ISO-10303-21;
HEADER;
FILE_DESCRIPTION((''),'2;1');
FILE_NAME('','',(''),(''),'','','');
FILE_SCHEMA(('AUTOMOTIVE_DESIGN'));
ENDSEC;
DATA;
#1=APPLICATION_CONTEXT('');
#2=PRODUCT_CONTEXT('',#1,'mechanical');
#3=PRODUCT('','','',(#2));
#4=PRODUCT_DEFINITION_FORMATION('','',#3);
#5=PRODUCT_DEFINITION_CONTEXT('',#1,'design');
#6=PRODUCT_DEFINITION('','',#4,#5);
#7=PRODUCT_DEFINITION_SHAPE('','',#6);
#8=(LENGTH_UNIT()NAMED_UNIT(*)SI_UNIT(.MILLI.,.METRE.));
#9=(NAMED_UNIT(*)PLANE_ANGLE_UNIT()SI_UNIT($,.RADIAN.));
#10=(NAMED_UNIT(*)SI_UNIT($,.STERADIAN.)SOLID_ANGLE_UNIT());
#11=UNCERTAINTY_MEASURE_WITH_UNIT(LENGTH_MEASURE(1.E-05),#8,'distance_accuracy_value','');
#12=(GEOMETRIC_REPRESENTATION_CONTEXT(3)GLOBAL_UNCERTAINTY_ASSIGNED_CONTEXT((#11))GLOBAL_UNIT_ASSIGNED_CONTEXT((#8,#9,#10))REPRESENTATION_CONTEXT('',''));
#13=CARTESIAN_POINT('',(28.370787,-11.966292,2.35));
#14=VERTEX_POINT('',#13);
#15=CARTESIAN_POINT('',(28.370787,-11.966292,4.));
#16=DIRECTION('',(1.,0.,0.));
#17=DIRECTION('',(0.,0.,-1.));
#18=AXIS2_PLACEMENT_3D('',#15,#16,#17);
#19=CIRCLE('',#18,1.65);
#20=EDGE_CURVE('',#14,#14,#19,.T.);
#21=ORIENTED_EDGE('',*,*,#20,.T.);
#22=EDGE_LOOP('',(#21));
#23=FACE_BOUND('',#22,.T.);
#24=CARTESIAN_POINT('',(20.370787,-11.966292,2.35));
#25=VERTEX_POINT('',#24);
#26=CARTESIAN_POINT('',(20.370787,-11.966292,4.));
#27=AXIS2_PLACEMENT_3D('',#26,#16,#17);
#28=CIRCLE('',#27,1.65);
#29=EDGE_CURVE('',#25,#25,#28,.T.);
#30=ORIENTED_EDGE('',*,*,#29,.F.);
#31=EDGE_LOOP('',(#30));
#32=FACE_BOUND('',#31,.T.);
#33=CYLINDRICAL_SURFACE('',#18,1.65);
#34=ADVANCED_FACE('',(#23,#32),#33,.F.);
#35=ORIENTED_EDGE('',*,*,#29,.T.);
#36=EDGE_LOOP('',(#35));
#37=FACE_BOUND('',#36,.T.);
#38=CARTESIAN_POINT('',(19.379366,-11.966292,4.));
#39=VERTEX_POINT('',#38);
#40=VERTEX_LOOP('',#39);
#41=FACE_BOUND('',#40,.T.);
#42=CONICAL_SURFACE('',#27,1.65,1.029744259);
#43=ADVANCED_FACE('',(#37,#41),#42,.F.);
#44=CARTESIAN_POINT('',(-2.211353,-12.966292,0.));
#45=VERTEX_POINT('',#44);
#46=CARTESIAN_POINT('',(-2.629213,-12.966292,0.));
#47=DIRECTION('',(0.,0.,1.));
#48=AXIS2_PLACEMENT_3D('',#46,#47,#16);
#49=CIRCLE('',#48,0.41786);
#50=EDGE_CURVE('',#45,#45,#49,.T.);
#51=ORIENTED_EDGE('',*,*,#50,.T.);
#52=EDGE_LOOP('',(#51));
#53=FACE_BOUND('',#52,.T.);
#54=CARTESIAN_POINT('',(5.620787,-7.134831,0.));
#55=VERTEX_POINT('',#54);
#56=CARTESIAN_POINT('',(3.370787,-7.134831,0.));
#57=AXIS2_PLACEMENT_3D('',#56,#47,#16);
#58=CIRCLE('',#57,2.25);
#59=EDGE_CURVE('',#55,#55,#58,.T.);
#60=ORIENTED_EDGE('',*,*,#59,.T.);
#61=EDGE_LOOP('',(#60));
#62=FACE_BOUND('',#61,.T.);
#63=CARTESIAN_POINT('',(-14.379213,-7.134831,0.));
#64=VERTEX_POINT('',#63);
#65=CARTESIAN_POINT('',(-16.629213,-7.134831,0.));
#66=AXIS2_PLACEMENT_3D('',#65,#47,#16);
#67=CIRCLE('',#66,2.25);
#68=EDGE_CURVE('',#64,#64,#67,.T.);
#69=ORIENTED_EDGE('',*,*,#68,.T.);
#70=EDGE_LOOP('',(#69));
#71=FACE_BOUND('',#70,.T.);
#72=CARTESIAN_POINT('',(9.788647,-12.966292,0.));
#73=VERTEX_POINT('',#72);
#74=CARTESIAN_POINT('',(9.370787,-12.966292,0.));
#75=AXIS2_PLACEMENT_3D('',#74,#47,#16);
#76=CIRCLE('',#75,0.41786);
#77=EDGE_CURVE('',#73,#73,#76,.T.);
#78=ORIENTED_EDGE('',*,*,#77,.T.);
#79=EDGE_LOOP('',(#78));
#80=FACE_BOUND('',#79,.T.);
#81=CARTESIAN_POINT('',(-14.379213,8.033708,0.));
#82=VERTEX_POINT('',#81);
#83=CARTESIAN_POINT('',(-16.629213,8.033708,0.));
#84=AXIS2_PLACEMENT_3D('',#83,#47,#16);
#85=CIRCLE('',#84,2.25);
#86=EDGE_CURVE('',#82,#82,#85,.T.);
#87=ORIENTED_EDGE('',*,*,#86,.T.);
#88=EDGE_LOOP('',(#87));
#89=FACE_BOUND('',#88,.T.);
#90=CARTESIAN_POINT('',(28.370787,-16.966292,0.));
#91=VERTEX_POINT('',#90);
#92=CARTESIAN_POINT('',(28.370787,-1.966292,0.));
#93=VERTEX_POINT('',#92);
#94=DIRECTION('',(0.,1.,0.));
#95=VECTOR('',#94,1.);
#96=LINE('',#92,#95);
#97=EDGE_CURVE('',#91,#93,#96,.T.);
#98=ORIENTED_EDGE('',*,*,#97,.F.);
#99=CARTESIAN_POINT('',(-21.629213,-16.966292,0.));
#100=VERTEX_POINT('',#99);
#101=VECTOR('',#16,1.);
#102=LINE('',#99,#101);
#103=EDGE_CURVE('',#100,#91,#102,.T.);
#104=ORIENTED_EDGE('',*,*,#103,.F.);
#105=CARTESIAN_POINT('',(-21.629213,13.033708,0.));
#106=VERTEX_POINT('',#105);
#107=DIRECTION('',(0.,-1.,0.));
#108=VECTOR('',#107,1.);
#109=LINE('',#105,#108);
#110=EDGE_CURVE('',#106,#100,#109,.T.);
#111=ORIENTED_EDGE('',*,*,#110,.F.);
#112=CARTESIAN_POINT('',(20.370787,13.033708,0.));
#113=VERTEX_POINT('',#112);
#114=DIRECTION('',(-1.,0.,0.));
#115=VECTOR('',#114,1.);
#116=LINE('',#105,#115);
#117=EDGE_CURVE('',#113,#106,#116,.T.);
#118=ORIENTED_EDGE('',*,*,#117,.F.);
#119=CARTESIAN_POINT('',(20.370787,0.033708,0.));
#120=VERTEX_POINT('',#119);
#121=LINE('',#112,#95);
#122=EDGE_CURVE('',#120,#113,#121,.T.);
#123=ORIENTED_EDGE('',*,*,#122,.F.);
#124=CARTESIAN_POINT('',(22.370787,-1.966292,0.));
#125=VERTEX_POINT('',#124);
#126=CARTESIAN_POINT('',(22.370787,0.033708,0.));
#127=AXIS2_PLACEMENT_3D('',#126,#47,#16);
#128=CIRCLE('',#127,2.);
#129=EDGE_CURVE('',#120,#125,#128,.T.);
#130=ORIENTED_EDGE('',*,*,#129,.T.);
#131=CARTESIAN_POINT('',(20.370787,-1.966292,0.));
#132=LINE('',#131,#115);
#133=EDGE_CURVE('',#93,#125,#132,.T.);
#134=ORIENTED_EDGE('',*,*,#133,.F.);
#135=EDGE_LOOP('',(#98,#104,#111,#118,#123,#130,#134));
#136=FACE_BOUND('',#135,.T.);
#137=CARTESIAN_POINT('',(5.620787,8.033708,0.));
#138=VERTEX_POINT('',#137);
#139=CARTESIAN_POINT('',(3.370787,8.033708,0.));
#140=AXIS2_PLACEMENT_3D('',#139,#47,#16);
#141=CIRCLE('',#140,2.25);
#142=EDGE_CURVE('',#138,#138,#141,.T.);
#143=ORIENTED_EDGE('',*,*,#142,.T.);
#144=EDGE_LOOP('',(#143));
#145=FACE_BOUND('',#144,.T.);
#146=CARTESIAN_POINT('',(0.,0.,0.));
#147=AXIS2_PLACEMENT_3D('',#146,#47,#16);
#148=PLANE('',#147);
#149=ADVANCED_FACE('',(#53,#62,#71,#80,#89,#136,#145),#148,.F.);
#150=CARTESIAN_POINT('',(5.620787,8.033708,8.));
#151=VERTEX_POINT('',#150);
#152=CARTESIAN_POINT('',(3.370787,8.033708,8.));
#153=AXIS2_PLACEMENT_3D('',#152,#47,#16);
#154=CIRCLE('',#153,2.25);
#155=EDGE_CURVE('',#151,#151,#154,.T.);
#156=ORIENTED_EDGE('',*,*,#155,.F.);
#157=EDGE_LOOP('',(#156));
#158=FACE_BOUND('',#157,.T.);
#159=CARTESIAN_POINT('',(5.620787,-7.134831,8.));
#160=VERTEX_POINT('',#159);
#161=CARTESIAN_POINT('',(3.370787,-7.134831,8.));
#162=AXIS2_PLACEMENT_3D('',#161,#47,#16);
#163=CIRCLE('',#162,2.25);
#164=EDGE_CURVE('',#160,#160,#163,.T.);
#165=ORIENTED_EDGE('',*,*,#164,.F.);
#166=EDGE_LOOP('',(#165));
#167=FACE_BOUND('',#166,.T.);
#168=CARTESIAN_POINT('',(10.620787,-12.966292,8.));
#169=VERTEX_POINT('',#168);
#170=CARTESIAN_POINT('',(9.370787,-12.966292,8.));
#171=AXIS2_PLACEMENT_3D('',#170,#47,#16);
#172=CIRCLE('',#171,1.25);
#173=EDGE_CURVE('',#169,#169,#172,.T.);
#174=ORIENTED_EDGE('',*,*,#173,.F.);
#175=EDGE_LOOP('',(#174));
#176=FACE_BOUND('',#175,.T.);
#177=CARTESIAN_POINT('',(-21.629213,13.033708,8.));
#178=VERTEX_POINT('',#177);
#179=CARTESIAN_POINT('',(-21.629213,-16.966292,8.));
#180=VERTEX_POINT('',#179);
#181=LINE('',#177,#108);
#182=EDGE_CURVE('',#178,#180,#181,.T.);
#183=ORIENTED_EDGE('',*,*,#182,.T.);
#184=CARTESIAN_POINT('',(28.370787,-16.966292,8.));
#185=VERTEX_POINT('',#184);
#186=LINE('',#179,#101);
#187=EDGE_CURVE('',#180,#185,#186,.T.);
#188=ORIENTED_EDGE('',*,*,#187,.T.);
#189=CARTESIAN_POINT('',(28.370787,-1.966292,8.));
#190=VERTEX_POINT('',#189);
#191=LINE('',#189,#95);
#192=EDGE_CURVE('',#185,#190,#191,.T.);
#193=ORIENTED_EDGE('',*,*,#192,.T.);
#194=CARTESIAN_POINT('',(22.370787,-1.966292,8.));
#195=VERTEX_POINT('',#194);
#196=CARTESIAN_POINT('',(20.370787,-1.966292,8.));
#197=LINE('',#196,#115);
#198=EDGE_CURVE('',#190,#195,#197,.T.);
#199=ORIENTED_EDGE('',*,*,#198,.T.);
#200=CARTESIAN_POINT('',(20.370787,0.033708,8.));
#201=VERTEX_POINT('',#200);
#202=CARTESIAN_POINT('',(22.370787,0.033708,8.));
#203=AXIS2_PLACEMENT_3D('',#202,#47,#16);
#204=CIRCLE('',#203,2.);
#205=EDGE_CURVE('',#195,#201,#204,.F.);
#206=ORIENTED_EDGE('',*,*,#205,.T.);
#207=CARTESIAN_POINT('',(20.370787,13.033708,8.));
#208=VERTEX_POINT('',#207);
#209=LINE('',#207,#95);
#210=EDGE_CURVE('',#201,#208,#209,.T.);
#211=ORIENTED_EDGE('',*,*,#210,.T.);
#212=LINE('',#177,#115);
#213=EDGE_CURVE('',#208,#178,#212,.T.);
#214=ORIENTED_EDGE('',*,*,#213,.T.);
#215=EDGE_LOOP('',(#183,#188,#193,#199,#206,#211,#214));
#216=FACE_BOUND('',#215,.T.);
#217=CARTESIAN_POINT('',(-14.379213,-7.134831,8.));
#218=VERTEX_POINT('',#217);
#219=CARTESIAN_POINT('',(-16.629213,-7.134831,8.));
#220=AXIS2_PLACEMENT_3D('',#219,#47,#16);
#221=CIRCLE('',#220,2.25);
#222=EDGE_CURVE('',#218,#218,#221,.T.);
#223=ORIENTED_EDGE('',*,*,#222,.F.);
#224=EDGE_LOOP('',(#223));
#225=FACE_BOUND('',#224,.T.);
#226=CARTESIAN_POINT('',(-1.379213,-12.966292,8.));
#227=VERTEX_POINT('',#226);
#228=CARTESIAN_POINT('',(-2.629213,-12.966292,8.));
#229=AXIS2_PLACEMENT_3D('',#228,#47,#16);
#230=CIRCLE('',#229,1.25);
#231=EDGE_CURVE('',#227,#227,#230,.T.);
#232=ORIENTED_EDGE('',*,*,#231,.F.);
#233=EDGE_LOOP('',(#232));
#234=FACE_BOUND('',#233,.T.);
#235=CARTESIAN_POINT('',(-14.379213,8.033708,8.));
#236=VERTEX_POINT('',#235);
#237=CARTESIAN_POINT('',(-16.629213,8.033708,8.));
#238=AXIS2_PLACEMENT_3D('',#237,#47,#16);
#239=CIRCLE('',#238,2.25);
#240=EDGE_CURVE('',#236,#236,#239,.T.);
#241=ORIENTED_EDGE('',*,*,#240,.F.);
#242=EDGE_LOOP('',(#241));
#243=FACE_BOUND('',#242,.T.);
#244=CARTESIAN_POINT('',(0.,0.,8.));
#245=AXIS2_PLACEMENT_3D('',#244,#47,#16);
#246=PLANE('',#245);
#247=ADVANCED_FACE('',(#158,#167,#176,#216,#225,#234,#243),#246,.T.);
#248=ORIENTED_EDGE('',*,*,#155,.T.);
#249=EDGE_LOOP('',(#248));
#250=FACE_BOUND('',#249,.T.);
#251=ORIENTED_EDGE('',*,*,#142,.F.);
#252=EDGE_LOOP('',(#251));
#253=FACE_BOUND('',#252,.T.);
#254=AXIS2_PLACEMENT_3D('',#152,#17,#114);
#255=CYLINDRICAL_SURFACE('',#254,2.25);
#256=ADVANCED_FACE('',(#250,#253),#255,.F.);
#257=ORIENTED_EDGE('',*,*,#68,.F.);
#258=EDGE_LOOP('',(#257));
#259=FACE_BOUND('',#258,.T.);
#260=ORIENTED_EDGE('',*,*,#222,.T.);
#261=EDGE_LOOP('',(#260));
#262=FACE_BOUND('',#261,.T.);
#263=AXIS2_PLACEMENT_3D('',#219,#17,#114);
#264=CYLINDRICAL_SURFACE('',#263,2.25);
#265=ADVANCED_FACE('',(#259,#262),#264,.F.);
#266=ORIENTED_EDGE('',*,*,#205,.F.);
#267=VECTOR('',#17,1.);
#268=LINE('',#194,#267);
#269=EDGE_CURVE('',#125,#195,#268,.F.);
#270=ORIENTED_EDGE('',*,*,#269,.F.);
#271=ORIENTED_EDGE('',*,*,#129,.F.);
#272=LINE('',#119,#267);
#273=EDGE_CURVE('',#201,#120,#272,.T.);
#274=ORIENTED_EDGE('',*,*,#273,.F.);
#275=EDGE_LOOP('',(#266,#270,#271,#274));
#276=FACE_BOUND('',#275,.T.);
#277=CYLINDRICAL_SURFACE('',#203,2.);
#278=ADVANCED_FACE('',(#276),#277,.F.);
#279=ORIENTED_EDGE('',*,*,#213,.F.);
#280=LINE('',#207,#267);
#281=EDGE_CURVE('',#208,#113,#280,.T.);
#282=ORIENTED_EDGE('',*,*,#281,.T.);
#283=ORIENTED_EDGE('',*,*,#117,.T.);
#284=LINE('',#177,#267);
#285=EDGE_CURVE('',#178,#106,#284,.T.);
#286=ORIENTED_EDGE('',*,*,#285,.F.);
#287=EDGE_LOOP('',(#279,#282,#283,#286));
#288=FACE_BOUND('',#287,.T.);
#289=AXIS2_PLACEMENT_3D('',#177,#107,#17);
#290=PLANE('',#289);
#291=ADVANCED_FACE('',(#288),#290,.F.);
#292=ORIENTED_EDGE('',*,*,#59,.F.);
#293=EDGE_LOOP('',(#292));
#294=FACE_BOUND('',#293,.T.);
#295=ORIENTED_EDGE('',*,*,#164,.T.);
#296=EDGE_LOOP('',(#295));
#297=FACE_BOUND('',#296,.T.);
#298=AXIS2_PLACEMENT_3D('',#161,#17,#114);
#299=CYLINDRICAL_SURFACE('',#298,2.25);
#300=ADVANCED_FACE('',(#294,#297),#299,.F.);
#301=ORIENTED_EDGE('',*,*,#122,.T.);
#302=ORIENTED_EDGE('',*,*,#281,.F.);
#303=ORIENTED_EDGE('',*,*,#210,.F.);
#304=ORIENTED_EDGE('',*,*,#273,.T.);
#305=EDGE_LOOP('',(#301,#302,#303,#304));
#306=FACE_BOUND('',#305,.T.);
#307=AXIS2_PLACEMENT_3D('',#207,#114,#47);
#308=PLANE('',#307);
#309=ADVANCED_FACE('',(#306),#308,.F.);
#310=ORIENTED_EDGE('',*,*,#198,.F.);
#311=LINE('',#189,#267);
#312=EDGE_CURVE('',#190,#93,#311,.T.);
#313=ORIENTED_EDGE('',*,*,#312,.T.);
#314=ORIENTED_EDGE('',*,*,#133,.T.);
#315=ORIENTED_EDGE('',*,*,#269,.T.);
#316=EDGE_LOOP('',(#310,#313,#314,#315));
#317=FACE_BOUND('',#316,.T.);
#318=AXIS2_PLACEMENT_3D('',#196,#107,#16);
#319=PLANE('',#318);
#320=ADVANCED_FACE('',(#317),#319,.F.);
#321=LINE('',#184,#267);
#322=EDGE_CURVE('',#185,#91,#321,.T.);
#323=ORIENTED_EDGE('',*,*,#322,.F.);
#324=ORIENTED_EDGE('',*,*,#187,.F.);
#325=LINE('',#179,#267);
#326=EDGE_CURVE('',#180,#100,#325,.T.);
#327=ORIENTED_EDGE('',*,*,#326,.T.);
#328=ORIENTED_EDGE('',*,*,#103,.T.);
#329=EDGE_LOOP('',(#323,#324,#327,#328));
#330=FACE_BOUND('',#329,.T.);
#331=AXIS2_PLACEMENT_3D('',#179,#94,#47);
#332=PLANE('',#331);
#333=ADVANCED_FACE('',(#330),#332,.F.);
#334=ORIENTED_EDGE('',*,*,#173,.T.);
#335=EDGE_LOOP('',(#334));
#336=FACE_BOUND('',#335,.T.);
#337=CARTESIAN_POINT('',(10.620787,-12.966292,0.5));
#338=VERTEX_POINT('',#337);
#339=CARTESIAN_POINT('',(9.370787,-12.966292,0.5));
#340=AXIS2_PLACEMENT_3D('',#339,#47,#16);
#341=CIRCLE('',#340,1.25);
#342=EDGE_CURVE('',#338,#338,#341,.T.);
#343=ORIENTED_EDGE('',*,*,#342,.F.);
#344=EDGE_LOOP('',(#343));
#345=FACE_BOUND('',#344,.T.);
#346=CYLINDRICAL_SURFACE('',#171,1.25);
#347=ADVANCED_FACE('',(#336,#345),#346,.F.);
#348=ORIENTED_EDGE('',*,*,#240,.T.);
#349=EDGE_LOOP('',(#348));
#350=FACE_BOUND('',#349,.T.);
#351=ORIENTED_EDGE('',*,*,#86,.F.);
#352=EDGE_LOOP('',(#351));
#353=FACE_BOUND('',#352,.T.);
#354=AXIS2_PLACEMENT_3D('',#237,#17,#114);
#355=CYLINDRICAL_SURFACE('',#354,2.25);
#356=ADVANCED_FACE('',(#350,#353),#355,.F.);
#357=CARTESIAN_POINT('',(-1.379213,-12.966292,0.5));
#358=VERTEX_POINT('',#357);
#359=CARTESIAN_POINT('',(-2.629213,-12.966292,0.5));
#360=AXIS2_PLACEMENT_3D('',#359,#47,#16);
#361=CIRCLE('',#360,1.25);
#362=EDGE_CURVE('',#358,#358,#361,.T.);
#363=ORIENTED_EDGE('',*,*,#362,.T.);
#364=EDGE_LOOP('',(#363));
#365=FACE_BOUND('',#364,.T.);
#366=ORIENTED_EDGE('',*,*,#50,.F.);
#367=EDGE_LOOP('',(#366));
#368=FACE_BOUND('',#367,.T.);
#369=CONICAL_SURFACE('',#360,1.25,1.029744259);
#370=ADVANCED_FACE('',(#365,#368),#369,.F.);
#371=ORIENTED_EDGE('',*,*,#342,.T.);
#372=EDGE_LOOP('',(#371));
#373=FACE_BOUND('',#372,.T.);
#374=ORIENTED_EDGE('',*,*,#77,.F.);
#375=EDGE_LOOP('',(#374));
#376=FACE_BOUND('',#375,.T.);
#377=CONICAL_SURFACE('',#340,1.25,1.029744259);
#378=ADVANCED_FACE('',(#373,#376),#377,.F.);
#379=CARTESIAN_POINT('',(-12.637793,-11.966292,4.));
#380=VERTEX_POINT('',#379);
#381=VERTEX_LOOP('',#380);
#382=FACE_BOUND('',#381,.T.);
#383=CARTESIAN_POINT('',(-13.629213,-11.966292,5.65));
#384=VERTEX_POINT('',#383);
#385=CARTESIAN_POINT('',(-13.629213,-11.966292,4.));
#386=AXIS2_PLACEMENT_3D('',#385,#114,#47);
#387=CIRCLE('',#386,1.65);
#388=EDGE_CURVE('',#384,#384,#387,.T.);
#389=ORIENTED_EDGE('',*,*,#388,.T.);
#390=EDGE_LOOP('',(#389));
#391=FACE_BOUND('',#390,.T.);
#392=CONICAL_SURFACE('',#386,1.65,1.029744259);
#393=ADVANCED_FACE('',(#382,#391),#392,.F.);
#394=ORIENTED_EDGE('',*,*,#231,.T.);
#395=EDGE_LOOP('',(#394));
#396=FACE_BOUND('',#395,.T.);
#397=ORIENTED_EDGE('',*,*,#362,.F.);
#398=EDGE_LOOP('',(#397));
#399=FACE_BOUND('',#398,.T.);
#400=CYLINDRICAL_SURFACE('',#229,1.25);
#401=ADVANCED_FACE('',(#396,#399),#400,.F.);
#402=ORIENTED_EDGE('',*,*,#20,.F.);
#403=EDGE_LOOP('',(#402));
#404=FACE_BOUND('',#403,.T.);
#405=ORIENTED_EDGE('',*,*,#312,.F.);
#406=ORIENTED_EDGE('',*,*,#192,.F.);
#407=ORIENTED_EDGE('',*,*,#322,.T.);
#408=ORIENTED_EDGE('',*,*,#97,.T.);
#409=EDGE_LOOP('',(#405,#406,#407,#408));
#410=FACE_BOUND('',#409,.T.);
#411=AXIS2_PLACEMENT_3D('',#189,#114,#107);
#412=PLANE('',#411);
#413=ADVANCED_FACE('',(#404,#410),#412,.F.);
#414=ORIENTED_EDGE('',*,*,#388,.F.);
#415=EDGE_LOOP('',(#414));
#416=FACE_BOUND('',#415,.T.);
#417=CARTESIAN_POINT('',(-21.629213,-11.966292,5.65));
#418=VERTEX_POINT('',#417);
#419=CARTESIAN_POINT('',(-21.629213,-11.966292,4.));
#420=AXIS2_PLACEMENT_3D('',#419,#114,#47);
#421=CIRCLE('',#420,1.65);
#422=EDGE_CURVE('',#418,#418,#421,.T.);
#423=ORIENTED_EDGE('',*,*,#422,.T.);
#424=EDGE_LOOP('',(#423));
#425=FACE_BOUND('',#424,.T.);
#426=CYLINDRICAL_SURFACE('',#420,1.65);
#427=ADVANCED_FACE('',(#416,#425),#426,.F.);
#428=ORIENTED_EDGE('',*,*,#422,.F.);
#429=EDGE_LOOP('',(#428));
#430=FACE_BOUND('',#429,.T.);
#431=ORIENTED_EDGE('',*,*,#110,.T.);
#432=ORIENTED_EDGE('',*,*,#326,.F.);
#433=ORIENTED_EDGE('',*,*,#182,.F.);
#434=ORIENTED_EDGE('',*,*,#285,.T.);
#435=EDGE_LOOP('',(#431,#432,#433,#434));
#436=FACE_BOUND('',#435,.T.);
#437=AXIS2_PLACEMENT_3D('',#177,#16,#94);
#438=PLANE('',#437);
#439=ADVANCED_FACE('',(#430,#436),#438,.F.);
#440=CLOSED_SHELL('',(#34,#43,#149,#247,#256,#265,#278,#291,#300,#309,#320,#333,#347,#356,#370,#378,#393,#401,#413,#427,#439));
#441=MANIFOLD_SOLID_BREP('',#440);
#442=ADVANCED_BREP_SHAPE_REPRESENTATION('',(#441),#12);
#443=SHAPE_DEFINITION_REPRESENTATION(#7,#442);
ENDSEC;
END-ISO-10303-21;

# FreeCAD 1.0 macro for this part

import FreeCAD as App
import Part
import Sketcher


def edges_at(feature, points):
    """Names of the edges that pass closest to the given points."""
    edges = feature.Shape.Edges
    near = lambda p: min(range(len(edges)), key=lambda i: edges[i].distToShape(Part.Vertex(*p))[0])
    return sorted({f"Edge{near(p) + 1}" for p in points})

doc = App.newDocument("Part")
body = doc.addObject("PartDesign::Body", "Body")

# Sketch on XY plane
sketch1 = body.newObject("Sketcher::SketchObject", "Sketch")
sketch1.AttachmentSupport = (doc.getObject("XY_Plane"), [""])
sketch1.MapMode = "FlatFace"
sketch1.addGeometry([
    Part.LineSegment(App.Vector(20.4, 13, 0), App.Vector(-21.6, 13, 0)),  # 0
    Part.LineSegment(App.Vector(-21.6, 13, 0), App.Vector(-21.6, -17, 0)),  # 1
    Part.LineSegment(App.Vector(-21.6, -17, 0), App.Vector(28.4, -17, 0)),  # 2
    Part.LineSegment(App.Vector(28.4, -17, 0), App.Vector(28.4, -2, 0)),  # 3
    Part.LineSegment(App.Vector(28.4, -2, 0), App.Vector(20.4, -2, 0)),  # 4
    Part.LineSegment(App.Vector(20.4, -2, 0), App.Vector(20.4, 13, 0)),  # 5
    Part.Circle(App.Vector(3.4, -7.1, 0), App.Vector(0, 0, 1), 2.2),  # 6
    Part.Circle(App.Vector(-16.6, -7.1, 0), App.Vector(0, 0, 1), 2.2),  # 7
    Part.Circle(App.Vector(3.4, 8, 0), App.Vector(0, 0, 1), 2.2),  # 8
    Part.Circle(App.Vector(-16.6, 8, 0), App.Vector(0, 0, 1), 2.2),  # 9
], False)
sketch1.addConstraint([
    Sketcher.Constraint("Coincident", 0, 2, 1, 1),
    Sketcher.Constraint("Coincident", 1, 2, 2, 1),
    Sketcher.Constraint("Coincident", 2, 2, 3, 1),
    Sketcher.Constraint("Coincident", 3, 2, 4, 1),
    Sketcher.Constraint("Coincident", 4, 2, 5, 1),
    Sketcher.Constraint("Coincident", 5, 2, 0, 1),
    Sketcher.Constraint("Horizontal", 0),
    Sketcher.Constraint("Vertical", 1),
    Sketcher.Constraint("Horizontal", 2),
    Sketcher.Constraint("Vertical", 3),
    Sketcher.Constraint("Horizontal", 4),
    Sketcher.Constraint("Vertical", 5),
    Sketcher.Constraint("Equal", 6, 7),
    Sketcher.Constraint("Equal", 7, 8),
    Sketcher.Constraint("Equal", 8, 9),
    Sketcher.Constraint("Horizontal", 6, 3, 7, 3),
    Sketcher.Constraint("Horizontal", 8, 3, 9, 3),
    Sketcher.Constraint("Vertical", 6, 3, 8, 3),
    Sketcher.Constraint("Vertical", 7, 3, 9, 3),
    Sketcher.Constraint("Equal", 3, 5),
    Sketcher.Constraint("Diameter", 6, 4.5),
    Sketcher.Constraint("DistanceX", 0, 2, 0, 1, 42.0),
    Sketcher.Constraint("DistanceX", 2, 1, 2, 2, 50.0),
    Sketcher.Constraint("DistanceY", 1, 2, 1, 1, 30.0),
    Sketcher.Constraint("DistanceX", 7, 3, 6, 3, 20.0),
    Sketcher.Constraint("DistanceX", 0, 2, 9, 3, 5.0),
    Sketcher.Constraint("DistanceY", 9, 3, 0, 2, 5.0),
    Sketcher.Constraint("DistanceY", 6, 3, -1, 1, 7.134831),
    Sketcher.Constraint("DistanceY", 6, 3, 8, 3, 15.168539),
    Sketcher.Constraint("DistanceX", -1, 1, 6, 3, 3.370787),
])
pad1 = body.newObject("PartDesign::Pad", "Pad")
pad1.Profile = sketch1
pad1.Length = 8

# Sketch on XY plane
sketch2 = body.newObject("Sketcher::SketchObject", "Sketch001")
sketch2.AttachmentSupport = (doc.getObject("XY_Plane"), [""])
sketch2.MapMode = "FlatFace"
sketch2.AttachmentOffset = App.Placement(App.Vector(0, 0, 8), App.Rotation())
sketch2.addGeometry([
    Part.Circle(App.Vector(-2.6, -13, 0), App.Vector(0, 0, 1), 1.2),
    Part.Circle(App.Vector(9.4, -13, 0), App.Vector(0, 0, 1), 1.2),
], False)
sketch2.addConstraint([
    Sketcher.Constraint("Equal", 0, 1),
    Sketcher.Constraint("Horizontal", 0, 3, 1, 3),
    Sketcher.Constraint("Diameter", 0, 2.5),
    Sketcher.Constraint("DistanceX", 0, 3, 1, 3, 12.0),
    Sketcher.Constraint("DistanceX", 0, 3, -1, 1, 2.629213),
    Sketcher.Constraint("DistanceY", 0, 3, -1, 1, 12.966292),
])
doc.recompute()
hole = body.newObject("PartDesign::Hole", "Hole")
hole.Profile = sketch2
hole.ThreadType = "None"
hole.Diameter = 2.5
hole.DepthType = "Dimension"
hole.Depth = 7.5
hole.DrillPoint = "Angled"
hole.DrillPointAngle = 118

# Sketch on YZ plane
sketch3 = body.newObject("Sketcher::SketchObject", "Sketch002")
sketch3.AttachmentSupport = (doc.getObject("YZ_Plane"), [""])
sketch3.MapMode = "FlatFace"
sketch3.AttachmentOffset = App.Placement(App.Vector(0, 0, 28.370787), App.Rotation())
sketch3.addGeometry(Part.Circle(App.Vector(-12, 4, 0), App.Vector(0, 0, 1), 1.6), False)
sketch3.addConstraint([
    Sketcher.Constraint("Diameter", 0, 3.3),
    Sketcher.Constraint("DistanceY", -1, 1, 0, 3, 4.0),
    Sketcher.Constraint("DistanceX", 0, 3, -1, 1, 11.966292),
])
doc.recompute()
hole2 = body.newObject("PartDesign::Hole", "Hole001")
hole2.Profile = sketch3
hole2.ThreadType = "None"
hole2.Diameter = 3.3
hole2.DepthType = "Dimension"
hole2.Depth = 8
hole2.DrillPoint = "Angled"
hole2.DrillPointAngle = 118

# Sketch on YZ plane
sketch4 = body.newObject("Sketcher::SketchObject", "Sketch003")
sketch4.AttachmentSupport = (doc.getObject("YZ_Plane"), [""])
sketch4.MapMode = "FlatFace"
sketch4.AttachmentOffset = App.Placement(App.Vector(0, 0, -21.629213), App.Rotation())
sketch4.addGeometry(Part.Circle(App.Vector(-12, 4, 0), App.Vector(0, 0, 1), 1.6), False)
sketch4.addConstraint([
    Sketcher.Constraint("Diameter", 0, 3.3),
    Sketcher.Constraint("DistanceY", -1, 1, 0, 3, 4.0),
    Sketcher.Constraint("DistanceX", 0, 3, -1, 1, 11.966292),
])
doc.recompute()
hole3 = body.newObject("PartDesign::Hole", "Hole002")
hole3.Profile = sketch4
hole3.ThreadType = "None"
hole3.Diameter = 3.3
hole3.DepthType = "Dimension"
hole3.Depth = 8
hole3.DrillPoint = "Angled"
hole3.DrillPointAngle = 118
hole3.Reversed = True
doc.recompute()

fillet = body.newObject("PartDesign::Fillet", "Fillet")
fillet.Base = (hole3, edges_at(hole3, [(20.371, -1.966, 4)]))
fillet.Radius = 2

doc.recompute()
